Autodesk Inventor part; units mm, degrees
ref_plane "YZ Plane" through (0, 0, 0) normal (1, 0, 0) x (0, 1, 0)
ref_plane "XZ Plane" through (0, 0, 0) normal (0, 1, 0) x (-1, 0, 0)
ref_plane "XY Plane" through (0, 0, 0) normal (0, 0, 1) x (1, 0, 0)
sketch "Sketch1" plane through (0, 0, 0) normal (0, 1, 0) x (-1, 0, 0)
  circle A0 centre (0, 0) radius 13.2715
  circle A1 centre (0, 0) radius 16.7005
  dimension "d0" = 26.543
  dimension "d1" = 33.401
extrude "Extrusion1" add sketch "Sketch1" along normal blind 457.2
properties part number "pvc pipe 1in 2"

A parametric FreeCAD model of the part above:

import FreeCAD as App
import Part
import Sketcher

V = App.Vector
Q = App.Units.Quantity

doc = App.newDocument("Part")
params = doc.addObject("Spreadsheet::Sheet", "Params")
for row, (alias, value) in enumerate([
    ("sketch1_diameter", "1.315 in"),
    ("sketch1_diameter2", "1.045 in"),
    ("pad1_length", "18 in"),
], start=1):
    params.set(f"A{row}", alias)
    params.set(f"B{row}", "=" + value)
    params.setAlias(f"B{row}", alias)

body = doc.addObject("PartDesign::Body", "Body")

sketch1 = body.newObject("Sketcher::SketchObject", "Sketch")
sketch1.AttachmentSupport = (doc.getObject("XZ_Plane"), [""])
sketch1.MapMode = "FlatFace"
sketch1.addGeometry([
    Part.Circle(V(0, 0, 0), V(0, 0, 1), 17),
    Part.Circle(V(0, 0, 0), V(0, 0, 1), 13),
], False)
sketch1.addConstraint([
    Sketcher.Constraint("Coincident", 0, 3, -1, 1),
    Sketcher.Constraint("Coincident", 1, 3, -1, 1),
    Sketcher.Constraint("Diameter", 0, Q("1.315 in")),
    Sketcher.Constraint("Diameter", 1, Q("1.045 in")),
])
sketch1.setExpression("Constraints[2]", "Params.sketch1_diameter")
sketch1.setExpression("Constraints[3]", "Params.sketch1_diameter2")
pad1 = body.newObject("PartDesign::Pad", "Pad")
pad1.Profile = sketch1
pad1.setExpression("Length", "Params.pad1_length")
pad1.Reversed = True

doc.recompute()
